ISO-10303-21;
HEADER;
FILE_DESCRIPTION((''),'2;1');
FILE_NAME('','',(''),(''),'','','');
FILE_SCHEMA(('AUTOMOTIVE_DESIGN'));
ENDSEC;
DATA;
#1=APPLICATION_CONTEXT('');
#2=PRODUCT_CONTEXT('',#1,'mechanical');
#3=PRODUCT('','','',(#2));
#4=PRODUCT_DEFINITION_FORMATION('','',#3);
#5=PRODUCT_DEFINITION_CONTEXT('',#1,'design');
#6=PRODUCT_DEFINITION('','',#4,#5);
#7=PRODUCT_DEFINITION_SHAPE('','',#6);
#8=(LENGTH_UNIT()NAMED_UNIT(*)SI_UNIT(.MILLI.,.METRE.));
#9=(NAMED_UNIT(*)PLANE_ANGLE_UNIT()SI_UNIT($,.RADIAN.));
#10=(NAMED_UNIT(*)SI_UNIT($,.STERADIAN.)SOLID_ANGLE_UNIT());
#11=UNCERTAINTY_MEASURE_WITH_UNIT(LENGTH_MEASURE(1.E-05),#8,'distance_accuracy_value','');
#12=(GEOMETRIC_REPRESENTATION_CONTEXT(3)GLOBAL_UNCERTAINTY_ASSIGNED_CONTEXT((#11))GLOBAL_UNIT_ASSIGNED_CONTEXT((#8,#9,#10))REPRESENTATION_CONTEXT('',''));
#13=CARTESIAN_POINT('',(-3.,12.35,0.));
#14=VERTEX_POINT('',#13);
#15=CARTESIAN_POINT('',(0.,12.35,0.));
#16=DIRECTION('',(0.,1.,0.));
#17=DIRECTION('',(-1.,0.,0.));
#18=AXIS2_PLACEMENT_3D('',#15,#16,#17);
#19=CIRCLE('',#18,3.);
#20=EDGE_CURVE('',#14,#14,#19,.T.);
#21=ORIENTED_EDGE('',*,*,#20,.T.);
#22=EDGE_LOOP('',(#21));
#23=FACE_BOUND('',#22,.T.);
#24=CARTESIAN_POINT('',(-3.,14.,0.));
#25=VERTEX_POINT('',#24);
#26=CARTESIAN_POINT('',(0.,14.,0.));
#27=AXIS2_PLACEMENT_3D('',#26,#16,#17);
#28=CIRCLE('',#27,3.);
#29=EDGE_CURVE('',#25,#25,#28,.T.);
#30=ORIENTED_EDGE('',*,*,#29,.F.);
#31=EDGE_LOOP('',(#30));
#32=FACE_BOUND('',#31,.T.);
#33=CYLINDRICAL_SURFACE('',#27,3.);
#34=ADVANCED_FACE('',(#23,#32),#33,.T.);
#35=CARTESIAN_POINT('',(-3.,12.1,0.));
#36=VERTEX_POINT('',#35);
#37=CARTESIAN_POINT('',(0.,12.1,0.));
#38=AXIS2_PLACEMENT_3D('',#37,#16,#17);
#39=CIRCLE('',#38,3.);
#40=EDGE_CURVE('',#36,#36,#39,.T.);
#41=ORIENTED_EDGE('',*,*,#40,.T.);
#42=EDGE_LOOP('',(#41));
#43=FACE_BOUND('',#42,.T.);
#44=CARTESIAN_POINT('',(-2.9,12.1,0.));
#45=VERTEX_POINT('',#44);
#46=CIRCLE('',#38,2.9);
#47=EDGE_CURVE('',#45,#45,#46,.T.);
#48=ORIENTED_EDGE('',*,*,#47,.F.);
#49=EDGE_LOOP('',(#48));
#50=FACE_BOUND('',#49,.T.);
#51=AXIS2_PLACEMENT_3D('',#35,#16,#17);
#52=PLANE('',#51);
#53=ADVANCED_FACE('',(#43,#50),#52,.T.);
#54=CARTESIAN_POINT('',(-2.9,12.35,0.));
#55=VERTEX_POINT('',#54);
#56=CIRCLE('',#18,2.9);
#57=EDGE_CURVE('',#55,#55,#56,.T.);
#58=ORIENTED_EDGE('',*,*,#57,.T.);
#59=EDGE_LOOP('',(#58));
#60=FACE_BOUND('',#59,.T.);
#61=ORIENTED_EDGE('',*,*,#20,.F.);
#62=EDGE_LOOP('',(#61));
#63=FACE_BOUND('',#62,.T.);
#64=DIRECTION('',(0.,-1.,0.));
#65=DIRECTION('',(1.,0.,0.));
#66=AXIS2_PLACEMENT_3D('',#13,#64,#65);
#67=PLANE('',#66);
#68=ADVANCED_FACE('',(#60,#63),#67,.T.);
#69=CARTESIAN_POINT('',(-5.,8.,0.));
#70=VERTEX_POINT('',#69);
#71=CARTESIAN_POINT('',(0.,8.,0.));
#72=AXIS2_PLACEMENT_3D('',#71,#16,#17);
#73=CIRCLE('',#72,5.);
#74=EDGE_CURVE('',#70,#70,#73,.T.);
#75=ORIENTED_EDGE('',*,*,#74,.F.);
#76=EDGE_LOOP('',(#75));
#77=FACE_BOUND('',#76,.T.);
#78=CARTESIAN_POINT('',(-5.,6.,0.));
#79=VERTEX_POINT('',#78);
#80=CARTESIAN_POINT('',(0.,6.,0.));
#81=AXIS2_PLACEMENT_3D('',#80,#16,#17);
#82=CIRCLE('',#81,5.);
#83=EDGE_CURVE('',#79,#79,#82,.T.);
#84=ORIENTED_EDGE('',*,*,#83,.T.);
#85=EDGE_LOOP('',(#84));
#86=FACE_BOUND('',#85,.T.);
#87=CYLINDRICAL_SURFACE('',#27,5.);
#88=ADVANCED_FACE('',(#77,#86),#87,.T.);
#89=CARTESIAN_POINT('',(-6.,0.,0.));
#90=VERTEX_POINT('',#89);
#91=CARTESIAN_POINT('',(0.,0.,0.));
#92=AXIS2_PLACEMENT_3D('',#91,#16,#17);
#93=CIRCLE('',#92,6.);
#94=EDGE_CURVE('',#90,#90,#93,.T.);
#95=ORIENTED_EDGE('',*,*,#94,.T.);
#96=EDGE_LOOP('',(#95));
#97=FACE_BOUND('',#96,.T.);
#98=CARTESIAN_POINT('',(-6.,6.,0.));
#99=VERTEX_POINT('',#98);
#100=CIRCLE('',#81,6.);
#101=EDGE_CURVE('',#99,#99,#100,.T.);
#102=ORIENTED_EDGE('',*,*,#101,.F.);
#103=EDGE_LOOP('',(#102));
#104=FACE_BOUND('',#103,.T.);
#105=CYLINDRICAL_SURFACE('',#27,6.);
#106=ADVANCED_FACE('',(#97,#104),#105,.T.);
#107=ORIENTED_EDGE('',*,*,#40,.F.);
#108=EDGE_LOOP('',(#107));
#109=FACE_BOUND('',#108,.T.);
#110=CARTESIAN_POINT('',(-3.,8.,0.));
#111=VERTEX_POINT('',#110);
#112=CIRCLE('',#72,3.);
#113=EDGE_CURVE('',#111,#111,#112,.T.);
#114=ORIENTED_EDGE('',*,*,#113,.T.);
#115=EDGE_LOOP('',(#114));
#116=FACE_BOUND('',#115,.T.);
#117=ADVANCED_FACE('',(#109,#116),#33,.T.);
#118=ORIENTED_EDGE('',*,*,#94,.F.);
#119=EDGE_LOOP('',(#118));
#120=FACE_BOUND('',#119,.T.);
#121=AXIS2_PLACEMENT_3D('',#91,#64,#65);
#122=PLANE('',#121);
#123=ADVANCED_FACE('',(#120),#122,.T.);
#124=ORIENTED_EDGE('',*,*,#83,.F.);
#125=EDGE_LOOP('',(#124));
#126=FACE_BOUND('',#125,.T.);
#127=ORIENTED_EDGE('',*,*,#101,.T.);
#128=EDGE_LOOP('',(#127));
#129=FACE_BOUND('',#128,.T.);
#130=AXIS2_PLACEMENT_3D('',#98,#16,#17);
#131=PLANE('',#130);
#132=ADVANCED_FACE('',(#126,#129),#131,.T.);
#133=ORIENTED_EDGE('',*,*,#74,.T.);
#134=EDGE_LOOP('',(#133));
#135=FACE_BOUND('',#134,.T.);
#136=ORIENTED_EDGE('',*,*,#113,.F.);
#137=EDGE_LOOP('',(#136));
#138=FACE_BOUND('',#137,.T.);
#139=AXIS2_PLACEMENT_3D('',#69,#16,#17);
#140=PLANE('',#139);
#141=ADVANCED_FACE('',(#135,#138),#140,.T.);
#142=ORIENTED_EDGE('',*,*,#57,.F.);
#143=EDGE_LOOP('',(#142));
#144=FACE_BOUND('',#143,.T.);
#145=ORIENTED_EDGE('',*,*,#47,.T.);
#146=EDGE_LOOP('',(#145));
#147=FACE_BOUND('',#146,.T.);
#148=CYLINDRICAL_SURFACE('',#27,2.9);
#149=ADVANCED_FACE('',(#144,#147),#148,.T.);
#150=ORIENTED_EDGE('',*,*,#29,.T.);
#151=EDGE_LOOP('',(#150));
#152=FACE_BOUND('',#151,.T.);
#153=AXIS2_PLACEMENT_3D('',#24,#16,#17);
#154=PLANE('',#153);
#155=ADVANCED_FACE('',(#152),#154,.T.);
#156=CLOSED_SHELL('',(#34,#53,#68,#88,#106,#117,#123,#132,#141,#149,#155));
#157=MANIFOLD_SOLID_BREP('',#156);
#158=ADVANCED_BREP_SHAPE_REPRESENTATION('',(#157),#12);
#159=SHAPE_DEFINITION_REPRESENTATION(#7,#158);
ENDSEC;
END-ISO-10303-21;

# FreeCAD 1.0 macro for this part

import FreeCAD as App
import Part
import Sketcher

V = App.Vector

doc = App.newDocument("Part")
body = doc.addObject("PartDesign::Body", "Body")

# Sketch on XY plane
sketch1 = body.newObject("Sketcher::SketchObject", "Sketch")
sketch1.AttachmentSupport = (doc.getObject("XY_Plane"), [""])
sketch1.MapMode = "FlatFace"
sketch1.addGeometry([
    Part.LineSegment(V(-6, 0, 0), V(0, 0, 0)),  # 0
    Part.LineSegment(V(0, 0, 0), V(0, 14, 0)),  # 1
    Part.LineSegment(V(0, 14, 0), V(-3, 14, 0)),  # 2
    Part.LineSegment(V(-3, 14, 0), V(-3, 12.35, 0)),  # 3
    Part.LineSegment(V(-3, 12.35, 0), V(-2.9, 12.35, 0)),  # 4
    Part.LineSegment(V(-2.9, 12.35, 0), V(-2.9, 12.1, 0)),  # 5
    Part.LineSegment(V(-2.9, 12.1, 0), V(-3, 12.1, 0)),  # 6
    Part.LineSegment(V(-3, 12.1, 0), V(-3, 8, 0)),  # 7
    Part.LineSegment(V(-3, 8, 0), V(-5, 8, 0)),  # 8
    Part.LineSegment(V(-5, 8, 0), V(-5, 6, 0)),  # 9
    Part.LineSegment(V(-5, 6, 0), V(-6, 6, 0)),  # 10
    Part.LineSegment(V(-6, 6, 0), V(-6, 0, 0)),  # 11
], False)
sketch1.addConstraint([
    Sketcher.Constraint("Coincident", 0, 2, 1, 1),
    Sketcher.Constraint("Coincident", 1, 2, 2, 1),
    Sketcher.Constraint("Coincident", 2, 2, 3, 1),
    Sketcher.Constraint("Coincident", 3, 2, 4, 1),
    Sketcher.Constraint("Coincident", 4, 2, 5, 1),
    Sketcher.Constraint("Coincident", 5, 2, 6, 1),
    Sketcher.Constraint("Coincident", 6, 2, 7, 1),
    Sketcher.Constraint("Coincident", 7, 2, 8, 1),
    Sketcher.Constraint("Coincident", 8, 2, 9, 1),
    Sketcher.Constraint("Coincident", 9, 2, 10, 1),
    Sketcher.Constraint("Coincident", 10, 2, 11, 1),
    Sketcher.Constraint("Coincident", 11, 2, 0, 1),
    Sketcher.Constraint("Horizontal", 0),
    Sketcher.Constraint("Vertical", 1),
    Sketcher.Constraint("Horizontal", 2),
    Sketcher.Constraint("Vertical", 3),
    Sketcher.Constraint("Horizontal", 4),
    Sketcher.Constraint("Vertical", 5),
    Sketcher.Constraint("Horizontal", 6),
    Sketcher.Constraint("Vertical", 7),
    Sketcher.Constraint("Horizontal", 8),
    Sketcher.Constraint("Vertical", 9),
    Sketcher.Constraint("Horizontal", 10),
    Sketcher.Constraint("Vertical", 11),
    Sketcher.Constraint("Coincident", 0, 2, -1, 1),
    Sketcher.Constraint("Vertical", 3, 2, 6, 2),
    Sketcher.Constraint("Equal", 8, 9),
    Sketcher.Constraint("Equal", 0, 11),
    Sketcher.Constraint("DistanceX", 0, 1, 0, 2, 6.0),
    Sketcher.Constraint("DistanceX", 2, 2, 2, 1, 3.0),
    Sketcher.Constraint("DistanceX", 8, 2, 8, 1, 2.0),
    Sketcher.Constraint("DistanceY", 1, 1, 1, 2, 14.0),
    Sketcher.Constraint("DistanceX", 4, 1, 4, 2, 0.1),
    Sketcher.Constraint("DistanceY", 7, 2, 7, 1, 4.1),
    Sketcher.Constraint("DistanceY", 3, 2, 3, 1, 1.65),
])
revolution = body.newObject("PartDesign::Revolution", "Revolution")
revolution.Profile = sketch1
revolution.ReferenceAxis = (sketch1, ["V_Axis"])
revolution.Angle = 360

doc.recompute()
